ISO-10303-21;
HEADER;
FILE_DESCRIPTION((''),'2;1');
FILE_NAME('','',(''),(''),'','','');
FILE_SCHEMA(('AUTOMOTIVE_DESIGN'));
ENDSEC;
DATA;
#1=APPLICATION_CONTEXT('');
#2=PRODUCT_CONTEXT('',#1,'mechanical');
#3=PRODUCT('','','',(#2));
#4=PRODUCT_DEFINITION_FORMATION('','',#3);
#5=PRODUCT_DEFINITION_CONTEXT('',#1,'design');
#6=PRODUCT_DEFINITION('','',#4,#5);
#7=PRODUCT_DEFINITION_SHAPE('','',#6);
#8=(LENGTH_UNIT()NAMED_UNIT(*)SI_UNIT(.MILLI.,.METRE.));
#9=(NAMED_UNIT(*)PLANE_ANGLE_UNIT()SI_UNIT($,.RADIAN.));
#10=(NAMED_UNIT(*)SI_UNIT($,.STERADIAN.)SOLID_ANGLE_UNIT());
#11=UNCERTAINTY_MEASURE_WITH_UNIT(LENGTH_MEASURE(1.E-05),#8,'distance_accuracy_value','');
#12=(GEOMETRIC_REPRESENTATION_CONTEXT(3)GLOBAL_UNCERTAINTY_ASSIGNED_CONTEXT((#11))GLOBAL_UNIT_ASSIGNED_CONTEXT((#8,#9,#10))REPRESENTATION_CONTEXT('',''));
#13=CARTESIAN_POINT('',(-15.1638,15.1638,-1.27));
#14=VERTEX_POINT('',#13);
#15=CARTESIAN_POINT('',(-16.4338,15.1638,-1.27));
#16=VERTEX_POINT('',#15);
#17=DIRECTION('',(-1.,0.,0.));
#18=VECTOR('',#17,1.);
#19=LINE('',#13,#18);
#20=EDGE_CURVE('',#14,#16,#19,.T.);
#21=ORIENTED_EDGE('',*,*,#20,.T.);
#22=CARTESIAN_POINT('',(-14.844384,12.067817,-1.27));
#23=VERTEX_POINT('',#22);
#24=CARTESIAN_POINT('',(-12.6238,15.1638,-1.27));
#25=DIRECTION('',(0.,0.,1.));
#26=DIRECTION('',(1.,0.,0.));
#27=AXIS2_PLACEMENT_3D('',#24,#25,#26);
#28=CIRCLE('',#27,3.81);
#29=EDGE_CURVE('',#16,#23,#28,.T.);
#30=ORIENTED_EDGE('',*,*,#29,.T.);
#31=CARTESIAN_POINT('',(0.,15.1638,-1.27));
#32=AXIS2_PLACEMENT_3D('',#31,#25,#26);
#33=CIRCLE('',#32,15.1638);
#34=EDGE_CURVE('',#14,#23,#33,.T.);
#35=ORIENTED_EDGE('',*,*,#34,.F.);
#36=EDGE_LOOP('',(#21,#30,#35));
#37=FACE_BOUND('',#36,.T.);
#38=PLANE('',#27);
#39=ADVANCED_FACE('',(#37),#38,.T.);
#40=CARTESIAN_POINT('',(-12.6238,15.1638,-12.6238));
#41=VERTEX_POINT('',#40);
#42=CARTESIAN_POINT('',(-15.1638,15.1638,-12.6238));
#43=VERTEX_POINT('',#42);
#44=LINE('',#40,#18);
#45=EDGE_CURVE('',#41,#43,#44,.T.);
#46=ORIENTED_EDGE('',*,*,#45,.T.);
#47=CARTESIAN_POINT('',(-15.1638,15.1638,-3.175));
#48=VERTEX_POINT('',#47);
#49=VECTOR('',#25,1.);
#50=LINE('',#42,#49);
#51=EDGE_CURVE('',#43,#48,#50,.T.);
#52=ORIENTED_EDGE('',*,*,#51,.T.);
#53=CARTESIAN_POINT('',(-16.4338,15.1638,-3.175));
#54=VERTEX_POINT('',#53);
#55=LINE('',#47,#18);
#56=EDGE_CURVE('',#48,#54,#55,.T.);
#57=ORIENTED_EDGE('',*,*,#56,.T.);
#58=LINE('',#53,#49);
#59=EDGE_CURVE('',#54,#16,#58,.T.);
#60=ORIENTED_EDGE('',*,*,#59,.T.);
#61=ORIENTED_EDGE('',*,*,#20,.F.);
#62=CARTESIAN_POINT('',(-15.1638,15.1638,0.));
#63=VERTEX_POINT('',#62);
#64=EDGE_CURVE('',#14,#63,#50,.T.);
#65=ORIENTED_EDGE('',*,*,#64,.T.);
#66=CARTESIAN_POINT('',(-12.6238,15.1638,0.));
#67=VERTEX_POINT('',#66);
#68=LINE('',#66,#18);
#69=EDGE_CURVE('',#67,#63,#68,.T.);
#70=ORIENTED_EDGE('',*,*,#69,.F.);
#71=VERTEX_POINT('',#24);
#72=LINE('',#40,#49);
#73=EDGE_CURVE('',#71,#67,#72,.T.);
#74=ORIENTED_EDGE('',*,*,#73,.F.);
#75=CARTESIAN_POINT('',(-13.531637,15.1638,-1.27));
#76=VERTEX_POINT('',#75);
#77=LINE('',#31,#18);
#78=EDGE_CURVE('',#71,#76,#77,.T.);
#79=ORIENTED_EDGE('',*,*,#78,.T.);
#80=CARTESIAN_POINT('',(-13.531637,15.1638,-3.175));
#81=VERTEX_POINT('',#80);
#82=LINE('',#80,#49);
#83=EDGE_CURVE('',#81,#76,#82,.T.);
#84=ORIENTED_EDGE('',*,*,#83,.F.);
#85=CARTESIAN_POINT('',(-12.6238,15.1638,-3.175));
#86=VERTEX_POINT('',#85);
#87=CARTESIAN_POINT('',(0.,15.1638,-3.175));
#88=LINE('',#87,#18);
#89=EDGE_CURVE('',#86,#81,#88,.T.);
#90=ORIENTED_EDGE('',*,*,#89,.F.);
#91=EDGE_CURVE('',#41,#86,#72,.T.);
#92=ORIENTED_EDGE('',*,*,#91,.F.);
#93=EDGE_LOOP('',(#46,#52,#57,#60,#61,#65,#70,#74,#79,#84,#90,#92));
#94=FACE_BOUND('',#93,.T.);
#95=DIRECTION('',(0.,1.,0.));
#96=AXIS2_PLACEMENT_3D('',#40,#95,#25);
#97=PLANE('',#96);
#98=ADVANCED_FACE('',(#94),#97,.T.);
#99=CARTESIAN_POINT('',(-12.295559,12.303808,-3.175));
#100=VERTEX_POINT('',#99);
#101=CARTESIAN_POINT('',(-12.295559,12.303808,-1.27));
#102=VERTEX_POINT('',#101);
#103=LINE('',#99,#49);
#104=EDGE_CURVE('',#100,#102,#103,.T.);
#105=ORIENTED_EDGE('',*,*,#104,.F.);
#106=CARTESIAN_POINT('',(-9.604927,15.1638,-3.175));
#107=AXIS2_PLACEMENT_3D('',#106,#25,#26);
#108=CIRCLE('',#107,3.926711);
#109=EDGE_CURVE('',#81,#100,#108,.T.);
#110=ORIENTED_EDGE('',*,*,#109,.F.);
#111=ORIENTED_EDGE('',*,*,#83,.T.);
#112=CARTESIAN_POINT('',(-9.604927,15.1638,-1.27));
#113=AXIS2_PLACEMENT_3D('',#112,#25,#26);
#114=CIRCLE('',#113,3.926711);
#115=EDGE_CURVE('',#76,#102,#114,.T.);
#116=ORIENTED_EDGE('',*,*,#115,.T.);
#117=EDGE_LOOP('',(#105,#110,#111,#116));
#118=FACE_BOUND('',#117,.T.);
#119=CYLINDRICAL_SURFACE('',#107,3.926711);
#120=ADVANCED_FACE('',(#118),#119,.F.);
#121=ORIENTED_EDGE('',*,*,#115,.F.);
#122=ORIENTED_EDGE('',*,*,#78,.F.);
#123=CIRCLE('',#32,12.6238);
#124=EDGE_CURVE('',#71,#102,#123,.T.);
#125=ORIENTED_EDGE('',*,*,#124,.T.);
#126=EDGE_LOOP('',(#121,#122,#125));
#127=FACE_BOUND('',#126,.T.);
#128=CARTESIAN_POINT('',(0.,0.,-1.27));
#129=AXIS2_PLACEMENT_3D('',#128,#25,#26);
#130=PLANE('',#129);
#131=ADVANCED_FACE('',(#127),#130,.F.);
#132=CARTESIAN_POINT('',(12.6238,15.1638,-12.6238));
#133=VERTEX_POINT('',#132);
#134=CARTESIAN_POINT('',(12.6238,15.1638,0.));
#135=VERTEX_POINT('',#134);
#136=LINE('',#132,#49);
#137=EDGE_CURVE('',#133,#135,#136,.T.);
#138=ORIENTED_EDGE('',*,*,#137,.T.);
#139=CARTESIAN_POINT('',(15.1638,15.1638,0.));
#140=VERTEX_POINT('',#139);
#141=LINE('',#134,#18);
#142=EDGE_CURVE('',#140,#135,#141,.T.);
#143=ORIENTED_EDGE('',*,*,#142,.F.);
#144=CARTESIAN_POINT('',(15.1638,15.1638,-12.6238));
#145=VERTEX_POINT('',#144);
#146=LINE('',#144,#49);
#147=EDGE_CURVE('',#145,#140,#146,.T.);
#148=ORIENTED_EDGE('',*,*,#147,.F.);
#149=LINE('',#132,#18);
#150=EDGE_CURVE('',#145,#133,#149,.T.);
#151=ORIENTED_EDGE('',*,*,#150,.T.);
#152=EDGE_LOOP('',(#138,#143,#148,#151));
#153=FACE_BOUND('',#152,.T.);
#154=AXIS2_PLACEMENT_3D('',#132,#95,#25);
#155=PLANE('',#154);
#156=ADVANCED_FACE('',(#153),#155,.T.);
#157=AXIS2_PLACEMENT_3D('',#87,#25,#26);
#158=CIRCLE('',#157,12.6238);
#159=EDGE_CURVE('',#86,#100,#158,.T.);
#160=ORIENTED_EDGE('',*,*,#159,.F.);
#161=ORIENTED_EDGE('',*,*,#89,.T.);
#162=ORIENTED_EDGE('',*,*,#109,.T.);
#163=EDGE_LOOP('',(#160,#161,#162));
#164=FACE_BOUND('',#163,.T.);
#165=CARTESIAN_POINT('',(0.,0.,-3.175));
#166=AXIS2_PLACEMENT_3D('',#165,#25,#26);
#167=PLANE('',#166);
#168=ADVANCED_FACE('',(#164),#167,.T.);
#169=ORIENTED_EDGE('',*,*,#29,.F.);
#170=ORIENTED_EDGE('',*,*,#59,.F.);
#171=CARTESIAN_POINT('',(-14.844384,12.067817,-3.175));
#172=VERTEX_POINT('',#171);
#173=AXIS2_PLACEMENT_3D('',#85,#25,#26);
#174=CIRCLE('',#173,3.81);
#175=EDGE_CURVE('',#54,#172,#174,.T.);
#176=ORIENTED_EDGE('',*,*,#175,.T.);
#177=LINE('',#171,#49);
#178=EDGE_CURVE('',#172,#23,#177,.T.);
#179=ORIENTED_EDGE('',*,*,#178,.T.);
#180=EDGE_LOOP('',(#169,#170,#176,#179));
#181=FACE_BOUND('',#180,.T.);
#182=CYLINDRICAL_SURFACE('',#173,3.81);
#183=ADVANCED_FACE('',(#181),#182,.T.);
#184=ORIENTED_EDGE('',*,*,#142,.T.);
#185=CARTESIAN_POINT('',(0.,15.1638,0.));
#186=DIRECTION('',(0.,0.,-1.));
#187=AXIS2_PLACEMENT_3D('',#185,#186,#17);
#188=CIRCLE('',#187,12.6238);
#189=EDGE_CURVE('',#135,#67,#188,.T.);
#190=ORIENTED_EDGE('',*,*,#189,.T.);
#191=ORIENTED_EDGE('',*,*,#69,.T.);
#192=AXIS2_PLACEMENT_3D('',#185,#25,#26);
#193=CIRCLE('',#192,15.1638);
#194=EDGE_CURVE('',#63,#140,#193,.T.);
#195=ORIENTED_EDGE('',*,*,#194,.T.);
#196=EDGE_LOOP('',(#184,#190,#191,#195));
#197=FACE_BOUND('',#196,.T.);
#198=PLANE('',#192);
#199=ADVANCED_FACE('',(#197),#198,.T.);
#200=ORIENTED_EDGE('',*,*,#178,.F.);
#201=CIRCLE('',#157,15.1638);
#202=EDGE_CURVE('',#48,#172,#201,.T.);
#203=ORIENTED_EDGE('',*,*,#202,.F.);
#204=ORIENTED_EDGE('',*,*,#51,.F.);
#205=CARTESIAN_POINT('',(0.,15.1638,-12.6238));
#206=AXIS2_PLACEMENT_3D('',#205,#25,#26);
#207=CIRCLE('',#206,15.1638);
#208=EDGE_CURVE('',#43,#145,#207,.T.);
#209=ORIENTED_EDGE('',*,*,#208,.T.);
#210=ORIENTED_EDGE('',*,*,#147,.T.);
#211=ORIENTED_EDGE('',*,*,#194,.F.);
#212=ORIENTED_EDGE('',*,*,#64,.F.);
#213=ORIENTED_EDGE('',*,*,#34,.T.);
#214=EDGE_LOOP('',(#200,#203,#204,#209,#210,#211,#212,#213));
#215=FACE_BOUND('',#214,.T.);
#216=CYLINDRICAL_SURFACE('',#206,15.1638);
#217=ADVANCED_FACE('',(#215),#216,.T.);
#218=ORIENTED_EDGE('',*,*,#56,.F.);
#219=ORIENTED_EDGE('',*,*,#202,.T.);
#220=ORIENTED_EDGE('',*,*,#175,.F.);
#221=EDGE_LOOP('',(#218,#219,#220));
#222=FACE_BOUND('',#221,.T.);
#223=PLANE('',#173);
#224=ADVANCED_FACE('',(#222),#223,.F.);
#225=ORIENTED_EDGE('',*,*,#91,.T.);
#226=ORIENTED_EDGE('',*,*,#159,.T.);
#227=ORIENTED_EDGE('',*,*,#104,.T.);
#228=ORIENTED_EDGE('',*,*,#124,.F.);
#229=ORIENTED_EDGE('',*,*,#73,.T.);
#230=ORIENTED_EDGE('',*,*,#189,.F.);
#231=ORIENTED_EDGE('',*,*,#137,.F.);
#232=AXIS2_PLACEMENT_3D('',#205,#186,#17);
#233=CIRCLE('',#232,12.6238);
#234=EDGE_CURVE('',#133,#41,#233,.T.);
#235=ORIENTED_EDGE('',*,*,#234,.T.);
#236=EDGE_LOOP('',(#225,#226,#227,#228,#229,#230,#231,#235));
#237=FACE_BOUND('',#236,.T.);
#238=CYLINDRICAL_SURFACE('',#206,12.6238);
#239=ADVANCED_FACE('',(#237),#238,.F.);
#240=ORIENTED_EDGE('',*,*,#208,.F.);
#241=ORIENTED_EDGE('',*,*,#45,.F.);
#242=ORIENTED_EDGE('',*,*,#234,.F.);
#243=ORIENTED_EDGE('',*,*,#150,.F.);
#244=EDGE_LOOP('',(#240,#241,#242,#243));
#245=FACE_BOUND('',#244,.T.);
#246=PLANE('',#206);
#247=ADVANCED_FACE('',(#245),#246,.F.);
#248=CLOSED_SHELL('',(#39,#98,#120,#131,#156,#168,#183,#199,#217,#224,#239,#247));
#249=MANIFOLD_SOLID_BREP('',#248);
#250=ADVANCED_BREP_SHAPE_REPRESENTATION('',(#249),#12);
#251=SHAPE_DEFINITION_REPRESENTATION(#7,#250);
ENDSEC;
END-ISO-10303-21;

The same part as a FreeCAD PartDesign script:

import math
import FreeCAD as App
import Part
import Sketcher

V = App.Vector
Q = App.Units.Quantity

doc = App.newDocument("Part")
body = doc.addObject("PartDesign::Body", "Body")

sketch1 = doc.addObject("Sketcher::SketchObject", "Sketch")
body.addObject(sketch1)
sketch1.AttachmentSupport = (doc.XY_Plane, [""])
sketch1.MapMode = "FlatFace"
sketch1.addGeometry([
    Part.LineSegment(V(-12.6, 15.2, 0), V(-15.2, 15.2, 0)),
    Part.ArcOfCircle(Part.Circle(V(0, 15.2, 0), V(0, 0, 1), 15.2), math.radians(180), math.radians(360)),
    Part.LineSegment(V(15.2, 15.2, 0), V(12.6, 15.2, 0)),
    Part.ArcOfCircle(Part.Circle(V(0, 15.2, 0), V(0, 0, 1), 12.6), math.radians(180), math.radians(360)),
], False)
sketch1.addConstraint([
    Sketcher.Constraint("Coincident", 0, 2, 1, 1),
    Sketcher.Constraint("Coincident", 1, 2, 2, 1),
    Sketcher.Constraint("Coincident", 2, 2, 3, 2),
    Sketcher.Constraint("Coincident", 3, 1, 0, 1),
    Sketcher.Constraint("Horizontal", 0),
    Sketcher.Constraint("Horizontal", 2),
    Sketcher.Constraint("Coincident", 3, 3, 1, 3),
    Sketcher.Constraint("Symmetric", 0, 2, 1, 2, -2),
    Sketcher.Constraint("Horizontal", 3, 3, 0, 2),
    Sketcher.Constraint("DistanceX", 0, 2, 0, 1, Q("0.1 in")),
    Sketcher.Constraint("Radius", 1, Q("0.597 in")),
    Sketcher.Constraint("DistanceY", -1, 1, 1, 3, Q("0.597 in")),
])
pad1 = doc.addObject("PartDesign::Pad", "Pad")
body.addObject(pad1)
pad1.Profile = sketch1
pad1.Length = Q("0.497 in")
pad1.Reversed = True

sketch2 = doc.addObject("Sketcher::SketchObject", "Sketch001")
body.addObject(sketch2)
sketch2.AttachmentSupport = (doc.XY_Plane, [""])
sketch2.MapMode = "FlatFace"
sketch2.AttachmentOffset = App.Placement(V(0, 0, -0.05 * 25.4), App.Rotation())
sketch2.addGeometry([
    Part.LineSegment(V(-15.2, 15.2, 0), V(-16.4, 15.2, 0)),
    Part.ArcOfCircle(Part.Circle(V(-12.6, 15.2, 0), V(0, 0, 1), 3.8), math.radians(180), math.radians(234)),
    Part.ArcOfCircle(Part.Circle(V(0, 15.2, 0), V(0, 0, 1), 15.2), math.radians(180), math.radians(191.78)),
], False)
sketch2.addConstraint([
    Sketcher.Constraint("Coincident", 0, 2, 1, 1),
    Sketcher.Constraint("Coincident", 1, 2, 2, 2),
    Sketcher.Constraint("Coincident", 2, 1, 0, 1),
    Sketcher.Constraint("Horizontal", 0),
    Sketcher.Constraint("PointOnObject", 2, 3, -2),
    Sketcher.Constraint("Horizontal", 1, 3, 2, 3),
    Sketcher.Constraint("Horizontal", 2, 3, 0, 2),
    Sketcher.Constraint("Radius", 1, Q("0.15 in")),
    Sketcher.Constraint("Radius", 2, Q("0.597 in")),
    Sketcher.Constraint("DistanceX", 0, 2, 0, 1, Q("0.05 in")),
    Sketcher.Constraint("DistanceY", -1, 1, 1, 3, Q("0.597 in")),
])
pad2 = doc.addObject("PartDesign::Pad", "Pad001")
body.addObject(pad2)
pad2.Profile = sketch2
pad2.Length = Q("0.075 in")
pad2.Reversed = True

sketch3 = doc.addObject("Sketcher::SketchObject", "Sketch002")
body.addObject(sketch3)
sketch3.AttachmentSupport = (doc.XY_Plane, [""])
sketch3.MapMode = "FlatFace"
sketch3.AttachmentOffset = App.Placement(V(0, 0, -0.05 * 25.4), App.Rotation())
sketch3.addGeometry([
    Part.LineSegment(V(-12.6, 15.2, 0), V(-13.5, 15.2, 0)),
    Part.ArcOfCircle(Part.Circle(V(-9.6, 15.2, 0), V(0, 0, 1), 3.9), math.radians(180), math.radians(227)),
    Part.ArcOfCircle(Part.Circle(V(0, 15.2, 0), V(0, 0, 1), 12.6), math.radians(180), math.radians(193.09)),
], False)
sketch3.addConstraint([
    Sketcher.Constraint("Coincident", 0, 2, 1, 1),
    Sketcher.Constraint("Coincident", 1, 2, 2, 2),
    Sketcher.Constraint("Coincident", 2, 1, 0, 1),
    Sketcher.Constraint("Horizontal", 0),
    Sketcher.Constraint("PointOnObject", 2, 3, -2),
    Sketcher.Constraint("Horizontal", 1, 3, 2, 3),
    Sketcher.Constraint("Horizontal", 2, 3, 0, 2),
    Sketcher.Constraint("Radius", 2, Q("0.497 in")),
    Sketcher.Constraint("DistanceY", -1, 1, 1, 3, Q("0.597 in")),
    Sketcher.Constraint("Radius", 1, Q("3.926711 mm")),
    Sketcher.Constraint("DistanceX", 0, 2, 0, 1, Q("0.907837 mm")),
])
pocket1 = doc.addObject("PartDesign::Pocket", "Pocket")
body.addObject(pocket1)
pocket1.Profile = sketch3
pocket1.Length = Q("0.075 in")

doc.recompute()
